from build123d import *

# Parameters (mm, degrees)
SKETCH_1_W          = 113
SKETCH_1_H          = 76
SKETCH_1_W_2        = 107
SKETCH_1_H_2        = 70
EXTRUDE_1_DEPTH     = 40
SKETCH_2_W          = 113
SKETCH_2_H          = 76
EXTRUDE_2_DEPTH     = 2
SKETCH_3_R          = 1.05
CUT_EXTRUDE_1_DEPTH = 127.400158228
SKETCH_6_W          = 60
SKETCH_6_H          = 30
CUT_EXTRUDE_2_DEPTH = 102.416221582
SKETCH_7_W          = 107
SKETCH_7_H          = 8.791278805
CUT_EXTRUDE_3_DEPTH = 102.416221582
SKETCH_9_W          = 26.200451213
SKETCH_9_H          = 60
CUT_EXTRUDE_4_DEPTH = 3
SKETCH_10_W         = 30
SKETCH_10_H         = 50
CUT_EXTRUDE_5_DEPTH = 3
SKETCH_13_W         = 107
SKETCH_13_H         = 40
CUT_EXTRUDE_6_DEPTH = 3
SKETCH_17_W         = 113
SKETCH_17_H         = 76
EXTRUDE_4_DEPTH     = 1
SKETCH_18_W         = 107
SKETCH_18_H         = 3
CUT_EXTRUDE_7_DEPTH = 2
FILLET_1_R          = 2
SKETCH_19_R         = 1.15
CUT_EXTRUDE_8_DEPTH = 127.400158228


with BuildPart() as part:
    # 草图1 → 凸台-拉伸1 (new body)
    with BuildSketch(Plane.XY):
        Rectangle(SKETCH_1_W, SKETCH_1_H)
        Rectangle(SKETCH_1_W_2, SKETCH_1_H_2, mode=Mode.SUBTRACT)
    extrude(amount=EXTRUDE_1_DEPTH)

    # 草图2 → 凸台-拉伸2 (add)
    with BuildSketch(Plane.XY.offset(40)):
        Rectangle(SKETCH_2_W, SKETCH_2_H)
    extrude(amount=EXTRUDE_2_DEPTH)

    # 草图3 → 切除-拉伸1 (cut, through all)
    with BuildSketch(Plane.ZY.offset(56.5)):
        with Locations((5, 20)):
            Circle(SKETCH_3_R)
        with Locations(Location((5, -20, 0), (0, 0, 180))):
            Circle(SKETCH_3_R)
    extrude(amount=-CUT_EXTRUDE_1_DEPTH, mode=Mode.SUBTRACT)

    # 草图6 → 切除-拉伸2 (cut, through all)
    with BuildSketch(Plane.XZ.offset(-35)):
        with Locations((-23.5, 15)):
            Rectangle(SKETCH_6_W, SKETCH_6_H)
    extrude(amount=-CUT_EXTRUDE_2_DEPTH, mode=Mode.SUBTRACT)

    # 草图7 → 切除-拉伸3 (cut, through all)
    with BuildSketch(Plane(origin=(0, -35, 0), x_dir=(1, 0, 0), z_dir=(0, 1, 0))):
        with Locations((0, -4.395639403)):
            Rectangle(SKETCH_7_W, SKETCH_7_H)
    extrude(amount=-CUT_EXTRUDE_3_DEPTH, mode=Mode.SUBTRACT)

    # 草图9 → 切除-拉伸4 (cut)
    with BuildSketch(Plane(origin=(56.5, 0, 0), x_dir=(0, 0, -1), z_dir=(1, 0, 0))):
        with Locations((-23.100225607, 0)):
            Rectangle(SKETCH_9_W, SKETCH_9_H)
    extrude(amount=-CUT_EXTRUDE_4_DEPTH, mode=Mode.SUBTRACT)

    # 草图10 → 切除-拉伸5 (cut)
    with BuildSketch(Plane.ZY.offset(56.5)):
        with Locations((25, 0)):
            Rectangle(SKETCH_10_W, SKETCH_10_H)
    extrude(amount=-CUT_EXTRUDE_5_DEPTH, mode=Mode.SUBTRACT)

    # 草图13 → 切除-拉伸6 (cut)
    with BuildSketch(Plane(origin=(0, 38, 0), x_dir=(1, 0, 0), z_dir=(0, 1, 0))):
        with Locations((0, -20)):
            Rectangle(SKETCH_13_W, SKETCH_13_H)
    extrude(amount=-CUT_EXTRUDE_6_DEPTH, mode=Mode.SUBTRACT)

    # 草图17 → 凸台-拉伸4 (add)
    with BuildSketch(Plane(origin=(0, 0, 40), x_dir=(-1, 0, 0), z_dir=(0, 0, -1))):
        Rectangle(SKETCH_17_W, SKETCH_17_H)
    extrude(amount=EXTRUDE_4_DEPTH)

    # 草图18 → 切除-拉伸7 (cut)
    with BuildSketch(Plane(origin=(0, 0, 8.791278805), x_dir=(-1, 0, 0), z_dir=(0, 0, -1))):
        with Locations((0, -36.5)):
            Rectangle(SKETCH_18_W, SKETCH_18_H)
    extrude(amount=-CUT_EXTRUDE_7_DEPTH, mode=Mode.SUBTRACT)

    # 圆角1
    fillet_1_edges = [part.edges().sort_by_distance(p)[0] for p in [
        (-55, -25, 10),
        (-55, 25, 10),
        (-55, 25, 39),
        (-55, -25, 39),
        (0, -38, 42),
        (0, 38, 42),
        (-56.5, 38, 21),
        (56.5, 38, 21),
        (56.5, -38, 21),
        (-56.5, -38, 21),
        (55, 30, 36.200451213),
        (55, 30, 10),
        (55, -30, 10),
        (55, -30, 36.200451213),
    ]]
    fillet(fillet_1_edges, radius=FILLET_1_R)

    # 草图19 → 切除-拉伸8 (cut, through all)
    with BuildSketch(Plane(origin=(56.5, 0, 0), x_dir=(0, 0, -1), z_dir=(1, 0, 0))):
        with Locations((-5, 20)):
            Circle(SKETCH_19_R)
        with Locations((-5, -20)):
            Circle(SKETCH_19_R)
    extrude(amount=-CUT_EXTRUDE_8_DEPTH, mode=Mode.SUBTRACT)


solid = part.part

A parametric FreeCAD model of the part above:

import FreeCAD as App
import Part
import Sketcher


def edges_at(feature, points):
    """Names of the edges that pass closest to the given points."""
    edges = feature.Shape.Edges
    near = lambda p: min(range(len(edges)), key=lambda i: edges[i].distToShape(Part.Vertex(*p))[0])
    return sorted({f"Edge{near(p) + 1}" for p in points})

doc = App.newDocument("Part")
params = doc.addObject("Spreadsheet::Sheet", "Params")
for row, (alias, value) in enumerate([
    ("sketch1_width", "113 mm"),
    ("sketch1_width2", "107 mm"),
    ("sketch1_height", "76 mm"),
    ("sketch1_height2", "70 mm"),
    ("pad1_length", "40 mm"),
    ("sketch2_width", "113 mm"),
    ("sketch2_height", "76 mm"),
    ("pad2_length", "2 mm"),
    ("sketch3_diameter", "2.1 mm"),
    ("sketch4_width", "60 mm"),
    ("sketch4_height", "30 mm"),
    ("sketch5_width", "107 mm"),
    ("sketch6_width", "60 mm"),
    ("pocket4_length", "3 mm"),
    ("sketch7_width", "50 mm"),
    ("sketch7_height", "30 mm"),
    ("pocket5_length", "3 mm"),
    ("sketch8_width", "107 mm"),
    ("sketch8_height", "40 mm"),
    ("pocket6_length", "3 mm"),
    ("sketch9_width", "113 mm"),
    ("sketch9_height", "76 mm"),
    ("pad3_length", "1 mm"),
    ("sketch10_width", "107 mm"),
    ("sketch10_height", "3 mm"),
    ("pocket7_length", "2 mm"),
    ("fillet_radius", "2 mm"),
    ("sketch11_diameter", "2.3 mm"),
], start=1):
    params.set(f"A{row}", alias)
    params.set(f"B{row}", "=" + value)
    params.setAlias(f"B{row}", alias)

body = doc.addObject("PartDesign::Body", "Body")

sketch1 = body.newObject("Sketcher::SketchObject", "Sketch")
sketch1.AttachmentSupport = (doc.getObject("XY_Plane"), [""])
sketch1.MapMode = "FlatFace"
sketch1.addGeometry(Part.LineSegment(App.Vector(-56.5, 38, 0), App.Vector(-56.5, -38, 0)), False)
sketch1.addGeometry(Part.LineSegment(App.Vector(-56.5, -38, 0), App.Vector(56.5, -38, 0)), False)
sketch1.addGeometry(Part.LineSegment(App.Vector(56.5, -38, 0), App.Vector(56.5, 38, 0)), False)
sketch1.addGeometry(Part.LineSegment(App.Vector(56.5, 38, 0), App.Vector(-56.5, 38, 0)), False)
sketch1.addGeometry(Part.LineSegment(App.Vector(53.5, -35, 0), App.Vector(-53.5, -35, 0)), False)
sketch1.addGeometry(Part.LineSegment(App.Vector(-53.5, -35, 0), App.Vector(-53.5, 35, 0)), False)
sketch1.addGeometry(Part.LineSegment(App.Vector(-53.5, 35, 0), App.Vector(53.5, 35, 0)), False)
sketch1.addGeometry(Part.LineSegment(App.Vector(53.5, 35, 0), App.Vector(53.5, -35, 0)), False)
sketch1.addConstraint(Sketcher.Constraint("Coincident", 0, 2, 1, 1))
sketch1.addConstraint(Sketcher.Constraint("Coincident", 1, 2, 2, 1))
sketch1.addConstraint(Sketcher.Constraint("Coincident", 2, 2, 3, 1))
sketch1.addConstraint(Sketcher.Constraint("Coincident", 3, 2, 0, 1))
sketch1.addConstraint(Sketcher.Constraint("Coincident", 4, 2, 5, 1))
sketch1.addConstraint(Sketcher.Constraint("Coincident", 5, 2, 6, 1))
sketch1.addConstraint(Sketcher.Constraint("Coincident", 6, 2, 7, 1))
sketch1.addConstraint(Sketcher.Constraint("Coincident", 7, 2, 4, 1))
sketch1.addConstraint(Sketcher.Constraint("Vertical", 0))
sketch1.addConstraint(Sketcher.Constraint("Horizontal", 1))
sketch1.addConstraint(Sketcher.Constraint("Vertical", 2))
sketch1.addConstraint(Sketcher.Constraint("Horizontal", 3))
sketch1.addConstraint(Sketcher.Constraint("Horizontal", 4))
sketch1.addConstraint(Sketcher.Constraint("Vertical", 5))
sketch1.addConstraint(Sketcher.Constraint("Horizontal", 6))
sketch1.addConstraint(Sketcher.Constraint("Vertical", 7))
sketch1.addConstraint(Sketcher.Constraint("Symmetric", 0, 2, 2, 2, -1, 1))
sketch1.addConstraint(Sketcher.Constraint("Symmetric", 4, 2, 6, 2, -1, 1))
sketch1.addConstraint(Sketcher.Constraint("DistanceX", 1, 1, 1, 2, 113.0))
sketch1.addConstraint(Sketcher.Constraint("DistanceX", 4, 2, 4, 1, 107.0))
sketch1.addConstraint(Sketcher.Constraint("DistanceY", 0, 2, 0, 1, 76.0))
sketch1.addConstraint(Sketcher.Constraint("DistanceY", 5, 1, 5, 2, 70.0))
sketch1.setExpression("Constraints[18]", "Params.sketch1_width")
sketch1.setExpression("Constraints[19]", "Params.sketch1_width2")
sketch1.setExpression("Constraints[20]", "Params.sketch1_height")
sketch1.setExpression("Constraints[21]", "Params.sketch1_height2")
pad1 = body.newObject("PartDesign::Pad", "Pad")
pad1.Profile = sketch1
pad1.setExpression("Length", "Params.pad1_length")

sketch2 = body.newObject("Sketcher::SketchObject", "Sketch001")
sketch2.AttachmentSupport = (doc.getObject("XY_Plane"), [""])
sketch2.MapMode = "FlatFace"
sketch2.AttachmentOffset = App.Placement(App.Vector(0, 0, 40), App.Rotation())
sketch2.addGeometry(Part.LineSegment(App.Vector(-56.5, 38, 0), App.Vector(-56.5, -38, 0)), False)
sketch2.addGeometry(Part.LineSegment(App.Vector(-56.5, -38, 0), App.Vector(56.5, -38, 0)), False)
sketch2.addGeometry(Part.LineSegment(App.Vector(56.5, -38, 0), App.Vector(56.5, 38, 0)), False)
sketch2.addGeometry(Part.LineSegment(App.Vector(56.5, 38, 0), App.Vector(-56.5, 38, 0)), False)
sketch2.addConstraint(Sketcher.Constraint("Coincident", 0, 2, 1, 1))
sketch2.addConstraint(Sketcher.Constraint("Coincident", 1, 2, 2, 1))
sketch2.addConstraint(Sketcher.Constraint("Coincident", 2, 2, 3, 1))
sketch2.addConstraint(Sketcher.Constraint("Coincident", 3, 2, 0, 1))
sketch2.addConstraint(Sketcher.Constraint("Vertical", 0))
sketch2.addConstraint(Sketcher.Constraint("Horizontal", 1))
sketch2.addConstraint(Sketcher.Constraint("Vertical", 2))
sketch2.addConstraint(Sketcher.Constraint("Horizontal", 3))
sketch2.addConstraint(Sketcher.Constraint("Symmetric", 0, 2, 2, 2, -1, 1))
sketch2.addConstraint(Sketcher.Constraint("DistanceX", 1, 1, 1, 2, 113.0))
sketch2.addConstraint(Sketcher.Constraint("DistanceY", 0, 2, 0, 1, 76.0))
sketch2.setExpression("Constraints[9]", "Params.sketch2_width")
sketch2.setExpression("Constraints[10]", "Params.sketch2_height")
pad2 = body.newObject("PartDesign::Pad", "Pad001")
pad2.Profile = sketch2
pad2.setExpression("Length", "Params.pad2_length")

sketch3 = body.newObject("Sketcher::SketchObject", "Sketch002")
sketch3.AttachmentSupport = (doc.getObject("YZ_Plane"), [""])
sketch3.MapMode = "FlatFace"
sketch3.AttachmentOffset = App.Placement(App.Vector(0, 0, -56.5), App.Rotation())
sketch3.addGeometry(Part.Circle(App.Vector(20, 5, 0), App.Vector(0, 0, 1), 1.05), False)
sketch3.addGeometry(Part.Circle(App.Vector(-20, 5, 0), App.Vector(0, 0, 1), 1.05), False)
sketch3.addConstraint(Sketcher.Constraint("Equal", 0, 1))
sketch3.addConstraint(Sketcher.Constraint("Symmetric", 0, 3, 1, 3, -2))
sketch3.addConstraint(Sketcher.Constraint("Diameter", 0, 2.1))
sketch3.addConstraint(Sketcher.Constraint("DistanceX", -1, 1, 0, 3, 20.0))
sketch3.addConstraint(Sketcher.Constraint("DistanceY", -1, 1, 0, 3, 5.0))
sketch3.setExpression("Constraints[2]", "Params.sketch3_diameter")
pocket1 = body.newObject("PartDesign::Pocket", "Pocket")
pocket1.Profile = sketch3
pocket1.Type = "ThroughAll"
pocket1.Reversed = True

sketch4 = body.newObject("Sketcher::SketchObject", "Sketch003")
sketch4.AttachmentSupport = (doc.getObject("XZ_Plane"), [""])
sketch4.MapMode = "FlatFace"
sketch4.AttachmentOffset = App.Placement(App.Vector(0, 0, -35), App.Rotation())
sketch4.addGeometry(Part.LineSegment(App.Vector(-53.5, 30, 0), App.Vector(-53.5, 0, 0)), False)
sketch4.addGeometry(Part.LineSegment(App.Vector(-53.5, 0, 0), App.Vector(6.5, 0, 0)), False)
sketch4.addGeometry(Part.LineSegment(App.Vector(6.5, 0, 0), App.Vector(6.5, 30, 0)), False)
sketch4.addGeometry(Part.LineSegment(App.Vector(6.5, 30, 0), App.Vector(-53.5, 30, 0)), False)
sketch4.addConstraint(Sketcher.Constraint("Coincident", 0, 2, 1, 1))
sketch4.addConstraint(Sketcher.Constraint("Coincident", 1, 2, 2, 1))
sketch4.addConstraint(Sketcher.Constraint("Coincident", 2, 2, 3, 1))
sketch4.addConstraint(Sketcher.Constraint("Coincident", 3, 2, 0, 1))
sketch4.addConstraint(Sketcher.Constraint("Vertical", 0))
sketch4.addConstraint(Sketcher.Constraint("Horizontal", 1))
sketch4.addConstraint(Sketcher.Constraint("Vertical", 2))
sketch4.addConstraint(Sketcher.Constraint("Horizontal", 3))
sketch4.addConstraint(Sketcher.Constraint("PointOnObject", 0, 2, -1))
sketch4.addConstraint(Sketcher.Constraint("DistanceX", 1, 1, 1, 2, 60.0))
sketch4.addConstraint(Sketcher.Constraint("DistanceY", 0, 2, 0, 1, 30.0))
sketch4.addConstraint(Sketcher.Constraint("DistanceX", 0, 2, -1, 1, 53.5))
sketch4.setExpression("Constraints[9]", "Params.sketch4_width")
sketch4.setExpression("Constraints[10]", "Params.sketch4_height")
pocket2 = body.newObject("PartDesign::Pocket", "Pocket001")
pocket2.Profile = sketch4
pocket2.Type = "ThroughAll"

sketch5 = body.newObject("Sketcher::SketchObject", "Sketch004")
sketch5.AttachmentSupport = (doc.getObject("XZ_Plane"), [""])
sketch5.MapMode = "FlatFace"
sketch5.AttachmentOffset = App.Placement(App.Vector(0, 0, 35), App.Rotation())
sketch5.addGeometry(Part.LineSegment(App.Vector(-53.5, 0, 0), App.Vector(-53.5, 8.791279, 0)), False)
sketch5.addGeometry(Part.LineSegment(App.Vector(-53.5, 8.791279, 0), App.Vector(53.5, 8.791279, 0)), False)
sketch5.addGeometry(Part.LineSegment(App.Vector(53.5, 8.791279, 0), App.Vector(53.5, 0, 0)), False)
sketch5.addGeometry(Part.LineSegment(App.Vector(53.5, 0, 0), App.Vector(-53.5, 0, 0)), False)
sketch5.addConstraint(Sketcher.Constraint("Coincident", 0, 2, 1, 1))
sketch5.addConstraint(Sketcher.Constraint("Coincident", 1, 2, 2, 1))
sketch5.addConstraint(Sketcher.Constraint("Coincident", 2, 2, 3, 1))
sketch5.addConstraint(Sketcher.Constraint("Coincident", 3, 2, 0, 1))
sketch5.addConstraint(Sketcher.Constraint("Vertical", 0))
sketch5.addConstraint(Sketcher.Constraint("Horizontal", 1))
sketch5.addConstraint(Sketcher.Constraint("Vertical", 2))
sketch5.addConstraint(Sketcher.Constraint("Horizontal", 3))
sketch5.addConstraint(Sketcher.Constraint("Symmetric", 2, 2, 3, 2, -1, 1))
sketch5.addConstraint(Sketcher.Constraint("DistanceX", 1, 1, 1, 2, 107.0))
sketch5.addConstraint(Sketcher.Constraint("DistanceY", 0, 1, 0, 2, 8.791279))
sketch5.setExpression("Constraints[9]", "Params.sketch5_width")
pocket3 = body.newObject("PartDesign::Pocket", "Pocket002")
pocket3.Profile = sketch5
pocket3.Type = "ThroughAll"
pocket3.Reversed = True

sketch6 = body.newObject("Sketcher::SketchObject", "Sketch005")
sketch6.AttachmentSupport = (doc.getObject("YZ_Plane"), [""])
sketch6.MapMode = "FlatFace"
sketch6.AttachmentOffset = App.Placement(App.Vector(0, 0, 56.5), App.Rotation())
sketch6.addGeometry(Part.LineSegment(App.Vector(30, 36.200451, 0), App.Vector(-30, 36.200451, 0)), False)
sketch6.addGeometry(Part.LineSegment(App.Vector(-30, 36.200451, 0), App.Vector(-30, 10, 0)), False)
sketch6.addGeometry(Part.LineSegment(App.Vector(-30, 10, 0), App.Vector(30, 10, 0)), False)
sketch6.addGeometry(Part.LineSegment(App.Vector(30, 10, 0), App.Vector(30, 36.200451, 0)), False)
sketch6.addConstraint(Sketcher.Constraint("Coincident", 0, 2, 1, 1))
sketch6.addConstraint(Sketcher.Constraint("Coincident", 1, 2, 2, 1))
sketch6.addConstraint(Sketcher.Constraint("Coincident", 2, 2, 3, 1))
sketch6.addConstraint(Sketcher.Constraint("Coincident", 3, 2, 0, 1))
sketch6.addConstraint(Sketcher.Constraint("Horizontal", 0))
sketch6.addConstraint(Sketcher.Constraint("Vertical", 1))
sketch6.addConstraint(Sketcher.Constraint("Horizontal", 2))
sketch6.addConstraint(Sketcher.Constraint("Vertical", 3))
sketch6.addConstraint(Sketcher.Constraint("DistanceX", 0, 2, 0, 1, 60.0))
sketch6.addConstraint(Sketcher.Constraint("DistanceX", 0, 2, -1, 1, 30.0))
sketch6.addConstraint(Sketcher.Constraint("DistanceY", -1, 1, 1, 2, 10.0))
sketch6.addConstraint(Sketcher.Constraint("DistanceY", 1, 2, 1, 1, 26.200451))
sketch6.setExpression("Constraints[8]", "Params.sketch6_width")
pocket4 = body.newObject("PartDesign::Pocket", "Pocket003")
pocket4.Profile = sketch6
pocket4.setExpression("Length", "Params.pocket4_length")

sketch7 = body.newObject("Sketcher::SketchObject", "Sketch006")
sketch7.AttachmentSupport = (doc.getObject("YZ_Plane"), [""])
sketch7.MapMode = "FlatFace"
sketch7.AttachmentOffset = App.Placement(App.Vector(0, 0, -56.5), App.Rotation())
sketch7.addGeometry(Part.LineSegment(App.Vector(25, 10, 0), App.Vector(-25, 10, 0)), False)
sketch7.addGeometry(Part.LineSegment(App.Vector(-25, 10, 0), App.Vector(-25, 40, 0)), False)
sketch7.addGeometry(Part.LineSegment(App.Vector(-25, 40, 0), App.Vector(25, 40, 0)), False)
sketch7.addGeometry(Part.LineSegment(App.Vector(25, 40, 0), App.Vector(25, 10, 0)), False)
sketch7.addConstraint(Sketcher.Constraint("Coincident", 0, 2, 1, 1))
sketch7.addConstraint(Sketcher.Constraint("Coincident", 1, 2, 2, 1))
sketch7.addConstraint(Sketcher.Constraint("Coincident", 2, 2, 3, 1))
sketch7.addConstraint(Sketcher.Constraint("Coincident", 3, 2, 0, 1))
sketch7.addConstraint(Sketcher.Constraint("Horizontal", 0))
sketch7.addConstraint(Sketcher.Constraint("Vertical", 1))
sketch7.addConstraint(Sketcher.Constraint("Horizontal", 2))
sketch7.addConstraint(Sketcher.Constraint("Vertical", 3))
sketch7.addConstraint(Sketcher.Constraint("DistanceX", 0, 2, 0, 1, 50.0))
sketch7.addConstraint(Sketcher.Constraint("DistanceY", 1, 1, 1, 2, 30.0))
sketch7.addConstraint(Sketcher.Constraint("DistanceX", 0, 2, -1, 1, 25.0))
sketch7.addConstraint(Sketcher.Constraint("DistanceY", -1, 1, 0, 2, 10.0))
sketch7.setExpression("Constraints[8]", "Params.sketch7_width")
sketch7.setExpression("Constraints[9]", "Params.sketch7_height")
pocket5 = body.newObject("PartDesign::Pocket", "Pocket004")
pocket5.Profile = sketch7
pocket5.setExpression("Length", "Params.pocket5_length")
pocket5.Reversed = True

sketch8 = body.newObject("Sketcher::SketchObject", "Sketch007")
sketch8.AttachmentSupport = (doc.getObject("XZ_Plane"), [""])
sketch8.MapMode = "FlatFace"
sketch8.AttachmentOffset = App.Placement(App.Vector(0, 0, -38), App.Rotation())
sketch8.addGeometry(Part.LineSegment(App.Vector(-53.5, 0, 0), App.Vector(-53.5, 40, 0)), False)
sketch8.addGeometry(Part.LineSegment(App.Vector(-53.5, 40, 0), App.Vector(53.5, 40, 0)), False)
sketch8.addGeometry(Part.LineSegment(App.Vector(53.5, 40, 0), App.Vector(53.5, 0, 0)), False)
sketch8.addGeometry(Part.LineSegment(App.Vector(53.5, 0, 0), App.Vector(-53.5, 0, 0)), False)
sketch8.addConstraint(Sketcher.Constraint("Coincident", 0, 2, 1, 1))
sketch8.addConstraint(Sketcher.Constraint("Coincident", 1, 2, 2, 1))
sketch8.addConstraint(Sketcher.Constraint("Coincident", 2, 2, 3, 1))
sketch8.addConstraint(Sketcher.Constraint("Coincident", 3, 2, 0, 1))
sketch8.addConstraint(Sketcher.Constraint("Vertical", 0))
sketch8.addConstraint(Sketcher.Constraint("Horizontal", 1))
sketch8.addConstraint(Sketcher.Constraint("Vertical", 2))
sketch8.addConstraint(Sketcher.Constraint("Horizontal", 3))
sketch8.addConstraint(Sketcher.Constraint("Symmetric", 2, 2, 3, 2, -1, 1))
sketch8.addConstraint(Sketcher.Constraint("DistanceX", 1, 1, 1, 2, 107.0))
sketch8.addConstraint(Sketcher.Constraint("DistanceY", 0, 1, 0, 2, 40.0))
sketch8.setExpression("Constraints[9]", "Params.sketch8_width")
sketch8.setExpression("Constraints[10]", "Params.sketch8_height")
pocket6 = body.newObject("PartDesign::Pocket", "Pocket005")
pocket6.Profile = sketch8
pocket6.setExpression("Length", "Params.pocket6_length")
pocket6.Reversed = True

sketch9 = body.newObject("Sketcher::SketchObject", "Sketch008")
sketch9.AttachmentSupport = (doc.getObject("XY_Plane"), [""])
sketch9.MapMode = "FlatFace"
sketch9.AttachmentOffset = App.Placement(App.Vector(0, 0, 40), App.Rotation())
sketch9.addGeometry(Part.LineSegment(App.Vector(56.5, 38, 0), App.Vector(56.5, -38, 0)), False)
sketch9.addGeometry(Part.LineSegment(App.Vector(56.5, -38, 0), App.Vector(-56.5, -38, 0)), False)
sketch9.addGeometry(Part.LineSegment(App.Vector(-56.5, -38, 0), App.Vector(-56.5, 38, 0)), False)
sketch9.addGeometry(Part.LineSegment(App.Vector(-56.5, 38, 0), App.Vector(56.5, 38, 0)), False)
sketch9.addConstraint(Sketcher.Constraint("Coincident", 0, 2, 1, 1))
sketch9.addConstraint(Sketcher.Constraint("Coincident", 1, 2, 2, 1))
sketch9.addConstraint(Sketcher.Constraint("Coincident", 2, 2, 3, 1))
sketch9.addConstraint(Sketcher.Constraint("Coincident", 3, 2, 0, 1))
sketch9.addConstraint(Sketcher.Constraint("Vertical", 0))
sketch9.addConstraint(Sketcher.Constraint("Horizontal", 1))
sketch9.addConstraint(Sketcher.Constraint("Vertical", 2))
sketch9.addConstraint(Sketcher.Constraint("Horizontal", 3))
sketch9.addConstraint(Sketcher.Constraint("Symmetric", 0, 2, 2, 2, -1, 1))
sketch9.addConstraint(Sketcher.Constraint("DistanceX", 1, 2, 1, 1, 113.0))
sketch9.addConstraint(Sketcher.Constraint("DistanceY", 0, 2, 0, 1, 76.0))
sketch9.setExpression("Constraints[9]", "Params.sketch9_width")
sketch9.setExpression("Constraints[10]", "Params.sketch9_height")
pad3 = body.newObject("PartDesign::Pad", "Pad002")
pad3.Profile = sketch9
pad3.setExpression("Length", "Params.pad3_length")
pad3.Reversed = True

sketch10 = body.newObject("Sketcher::SketchObject", "Sketch009")
sketch10.AttachmentSupport = (doc.getObject("XY_Plane"), [""])
sketch10.MapMode = "FlatFace"
sketch10.AttachmentOffset = App.Placement(App.Vector(0, 0, 8.791279), App.Rotation())
sketch10.addGeometry(Part.LineSegment(App.Vector(53.5, -35, 0), App.Vector(53.5, -38, 0)), False)
sketch10.addGeometry(Part.LineSegment(App.Vector(53.5, -38, 0), App.Vector(-53.5, -38, 0)), False)
sketch10.addGeometry(Part.LineSegment(App.Vector(-53.5, -38, 0), App.Vector(-53.5, -35, 0)), False)
sketch10.addGeometry(Part.LineSegment(App.Vector(-53.5, -35, 0), App.Vector(53.5, -35, 0)), False)
sketch10.addConstraint(Sketcher.Constraint("Coincident", 0, 2, 1, 1))
sketch10.addConstraint(Sketcher.Constraint("Coincident", 1, 2, 2, 1))
sketch10.addConstraint(Sketcher.Constraint("Coincident", 2, 2, 3, 1))
sketch10.addConstraint(Sketcher.Constraint("Coincident", 3, 2, 0, 1))
sketch10.addConstraint(Sketcher.Constraint("Vertical", 0))
sketch10.addConstraint(Sketcher.Constraint("Horizontal", 1))
sketch10.addConstraint(Sketcher.Constraint("Vertical", 2))
sketch10.addConstraint(Sketcher.Constraint("Horizontal", 3))
sketch10.addConstraint(Sketcher.Constraint("DistanceX", 1, 2, 1, 1, 107.0))
sketch10.addConstraint(Sketcher.Constraint("DistanceY", 0, 2, 0, 1, 3.0))
sketch10.addConstraint(Sketcher.Constraint("DistanceY", 0, 2, -1, 1, 38.0))
sketch10.addConstraint(Sketcher.Constraint("DistanceX", -1, 1, 0, 2, 53.5))
sketch10.setExpression("Constraints[8]", "Params.sketch10_width")
sketch10.setExpression("Constraints[9]", "Params.sketch10_height")
pocket7 = body.newObject("PartDesign::Pocket", "Pocket006")
pocket7.Profile = sketch10
pocket7.setExpression("Length", "Params.pocket7_length")
pocket7.Reversed = True
doc.recompute()

fillet = body.newObject("PartDesign::Fillet", "Fillet")
fillet.Base = (pocket7, edges_at(pocket7, [
    (-55, -25, 10),
    (-55, 25, 10),
    (-55, 25, 39),
    (-55, -25, 39),
    (0, -38, 42),
    (0, 38, 42),
    (-56.5, 38, 21),
    (56.5, 38, 21),
    (56.5, -38, 21),
    (-56.5, -38, 21),
    (55, 30, 36.2),
    (55, 30, 10),
    (55, -30, 10),
    (55, -30, 36.2),
]))
fillet.setExpression("Radius", "Params.fillet_radius")

sketch11 = body.newObject("Sketcher::SketchObject", "Sketch010")
sketch11.AttachmentSupport = (doc.getObject("YZ_Plane"), [""])
sketch11.MapMode = "FlatFace"
sketch11.AttachmentOffset = App.Placement(App.Vector(0, 0, 56.5), App.Rotation())
sketch11.addGeometry(Part.Circle(App.Vector(20, 5, 0), App.Vector(0, 0, 1), 1.15), False)
sketch11.addGeometry(Part.Circle(App.Vector(-20, 5, 0), App.Vector(0, 0, 1), 1.15), False)
sketch11.addConstraint(Sketcher.Constraint("Equal", 0, 1))
sketch11.addConstraint(Sketcher.Constraint("Symmetric", 0, 3, 1, 3, -2))
sketch11.addConstraint(Sketcher.Constraint("Diameter", 0, 2.3))
sketch11.addConstraint(Sketcher.Constraint("DistanceX", -1, 1, 0, 3, 20.0))
sketch11.addConstraint(Sketcher.Constraint("DistanceY", -1, 1, 0, 3, 5.0))
sketch11.setExpression("Constraints[2]", "Params.sketch11_diameter")
pocket8 = body.newObject("PartDesign::Pocket", "Pocket007")
pocket8.Profile = sketch11
pocket8.Type = "ThroughAll"

doc.recompute()
